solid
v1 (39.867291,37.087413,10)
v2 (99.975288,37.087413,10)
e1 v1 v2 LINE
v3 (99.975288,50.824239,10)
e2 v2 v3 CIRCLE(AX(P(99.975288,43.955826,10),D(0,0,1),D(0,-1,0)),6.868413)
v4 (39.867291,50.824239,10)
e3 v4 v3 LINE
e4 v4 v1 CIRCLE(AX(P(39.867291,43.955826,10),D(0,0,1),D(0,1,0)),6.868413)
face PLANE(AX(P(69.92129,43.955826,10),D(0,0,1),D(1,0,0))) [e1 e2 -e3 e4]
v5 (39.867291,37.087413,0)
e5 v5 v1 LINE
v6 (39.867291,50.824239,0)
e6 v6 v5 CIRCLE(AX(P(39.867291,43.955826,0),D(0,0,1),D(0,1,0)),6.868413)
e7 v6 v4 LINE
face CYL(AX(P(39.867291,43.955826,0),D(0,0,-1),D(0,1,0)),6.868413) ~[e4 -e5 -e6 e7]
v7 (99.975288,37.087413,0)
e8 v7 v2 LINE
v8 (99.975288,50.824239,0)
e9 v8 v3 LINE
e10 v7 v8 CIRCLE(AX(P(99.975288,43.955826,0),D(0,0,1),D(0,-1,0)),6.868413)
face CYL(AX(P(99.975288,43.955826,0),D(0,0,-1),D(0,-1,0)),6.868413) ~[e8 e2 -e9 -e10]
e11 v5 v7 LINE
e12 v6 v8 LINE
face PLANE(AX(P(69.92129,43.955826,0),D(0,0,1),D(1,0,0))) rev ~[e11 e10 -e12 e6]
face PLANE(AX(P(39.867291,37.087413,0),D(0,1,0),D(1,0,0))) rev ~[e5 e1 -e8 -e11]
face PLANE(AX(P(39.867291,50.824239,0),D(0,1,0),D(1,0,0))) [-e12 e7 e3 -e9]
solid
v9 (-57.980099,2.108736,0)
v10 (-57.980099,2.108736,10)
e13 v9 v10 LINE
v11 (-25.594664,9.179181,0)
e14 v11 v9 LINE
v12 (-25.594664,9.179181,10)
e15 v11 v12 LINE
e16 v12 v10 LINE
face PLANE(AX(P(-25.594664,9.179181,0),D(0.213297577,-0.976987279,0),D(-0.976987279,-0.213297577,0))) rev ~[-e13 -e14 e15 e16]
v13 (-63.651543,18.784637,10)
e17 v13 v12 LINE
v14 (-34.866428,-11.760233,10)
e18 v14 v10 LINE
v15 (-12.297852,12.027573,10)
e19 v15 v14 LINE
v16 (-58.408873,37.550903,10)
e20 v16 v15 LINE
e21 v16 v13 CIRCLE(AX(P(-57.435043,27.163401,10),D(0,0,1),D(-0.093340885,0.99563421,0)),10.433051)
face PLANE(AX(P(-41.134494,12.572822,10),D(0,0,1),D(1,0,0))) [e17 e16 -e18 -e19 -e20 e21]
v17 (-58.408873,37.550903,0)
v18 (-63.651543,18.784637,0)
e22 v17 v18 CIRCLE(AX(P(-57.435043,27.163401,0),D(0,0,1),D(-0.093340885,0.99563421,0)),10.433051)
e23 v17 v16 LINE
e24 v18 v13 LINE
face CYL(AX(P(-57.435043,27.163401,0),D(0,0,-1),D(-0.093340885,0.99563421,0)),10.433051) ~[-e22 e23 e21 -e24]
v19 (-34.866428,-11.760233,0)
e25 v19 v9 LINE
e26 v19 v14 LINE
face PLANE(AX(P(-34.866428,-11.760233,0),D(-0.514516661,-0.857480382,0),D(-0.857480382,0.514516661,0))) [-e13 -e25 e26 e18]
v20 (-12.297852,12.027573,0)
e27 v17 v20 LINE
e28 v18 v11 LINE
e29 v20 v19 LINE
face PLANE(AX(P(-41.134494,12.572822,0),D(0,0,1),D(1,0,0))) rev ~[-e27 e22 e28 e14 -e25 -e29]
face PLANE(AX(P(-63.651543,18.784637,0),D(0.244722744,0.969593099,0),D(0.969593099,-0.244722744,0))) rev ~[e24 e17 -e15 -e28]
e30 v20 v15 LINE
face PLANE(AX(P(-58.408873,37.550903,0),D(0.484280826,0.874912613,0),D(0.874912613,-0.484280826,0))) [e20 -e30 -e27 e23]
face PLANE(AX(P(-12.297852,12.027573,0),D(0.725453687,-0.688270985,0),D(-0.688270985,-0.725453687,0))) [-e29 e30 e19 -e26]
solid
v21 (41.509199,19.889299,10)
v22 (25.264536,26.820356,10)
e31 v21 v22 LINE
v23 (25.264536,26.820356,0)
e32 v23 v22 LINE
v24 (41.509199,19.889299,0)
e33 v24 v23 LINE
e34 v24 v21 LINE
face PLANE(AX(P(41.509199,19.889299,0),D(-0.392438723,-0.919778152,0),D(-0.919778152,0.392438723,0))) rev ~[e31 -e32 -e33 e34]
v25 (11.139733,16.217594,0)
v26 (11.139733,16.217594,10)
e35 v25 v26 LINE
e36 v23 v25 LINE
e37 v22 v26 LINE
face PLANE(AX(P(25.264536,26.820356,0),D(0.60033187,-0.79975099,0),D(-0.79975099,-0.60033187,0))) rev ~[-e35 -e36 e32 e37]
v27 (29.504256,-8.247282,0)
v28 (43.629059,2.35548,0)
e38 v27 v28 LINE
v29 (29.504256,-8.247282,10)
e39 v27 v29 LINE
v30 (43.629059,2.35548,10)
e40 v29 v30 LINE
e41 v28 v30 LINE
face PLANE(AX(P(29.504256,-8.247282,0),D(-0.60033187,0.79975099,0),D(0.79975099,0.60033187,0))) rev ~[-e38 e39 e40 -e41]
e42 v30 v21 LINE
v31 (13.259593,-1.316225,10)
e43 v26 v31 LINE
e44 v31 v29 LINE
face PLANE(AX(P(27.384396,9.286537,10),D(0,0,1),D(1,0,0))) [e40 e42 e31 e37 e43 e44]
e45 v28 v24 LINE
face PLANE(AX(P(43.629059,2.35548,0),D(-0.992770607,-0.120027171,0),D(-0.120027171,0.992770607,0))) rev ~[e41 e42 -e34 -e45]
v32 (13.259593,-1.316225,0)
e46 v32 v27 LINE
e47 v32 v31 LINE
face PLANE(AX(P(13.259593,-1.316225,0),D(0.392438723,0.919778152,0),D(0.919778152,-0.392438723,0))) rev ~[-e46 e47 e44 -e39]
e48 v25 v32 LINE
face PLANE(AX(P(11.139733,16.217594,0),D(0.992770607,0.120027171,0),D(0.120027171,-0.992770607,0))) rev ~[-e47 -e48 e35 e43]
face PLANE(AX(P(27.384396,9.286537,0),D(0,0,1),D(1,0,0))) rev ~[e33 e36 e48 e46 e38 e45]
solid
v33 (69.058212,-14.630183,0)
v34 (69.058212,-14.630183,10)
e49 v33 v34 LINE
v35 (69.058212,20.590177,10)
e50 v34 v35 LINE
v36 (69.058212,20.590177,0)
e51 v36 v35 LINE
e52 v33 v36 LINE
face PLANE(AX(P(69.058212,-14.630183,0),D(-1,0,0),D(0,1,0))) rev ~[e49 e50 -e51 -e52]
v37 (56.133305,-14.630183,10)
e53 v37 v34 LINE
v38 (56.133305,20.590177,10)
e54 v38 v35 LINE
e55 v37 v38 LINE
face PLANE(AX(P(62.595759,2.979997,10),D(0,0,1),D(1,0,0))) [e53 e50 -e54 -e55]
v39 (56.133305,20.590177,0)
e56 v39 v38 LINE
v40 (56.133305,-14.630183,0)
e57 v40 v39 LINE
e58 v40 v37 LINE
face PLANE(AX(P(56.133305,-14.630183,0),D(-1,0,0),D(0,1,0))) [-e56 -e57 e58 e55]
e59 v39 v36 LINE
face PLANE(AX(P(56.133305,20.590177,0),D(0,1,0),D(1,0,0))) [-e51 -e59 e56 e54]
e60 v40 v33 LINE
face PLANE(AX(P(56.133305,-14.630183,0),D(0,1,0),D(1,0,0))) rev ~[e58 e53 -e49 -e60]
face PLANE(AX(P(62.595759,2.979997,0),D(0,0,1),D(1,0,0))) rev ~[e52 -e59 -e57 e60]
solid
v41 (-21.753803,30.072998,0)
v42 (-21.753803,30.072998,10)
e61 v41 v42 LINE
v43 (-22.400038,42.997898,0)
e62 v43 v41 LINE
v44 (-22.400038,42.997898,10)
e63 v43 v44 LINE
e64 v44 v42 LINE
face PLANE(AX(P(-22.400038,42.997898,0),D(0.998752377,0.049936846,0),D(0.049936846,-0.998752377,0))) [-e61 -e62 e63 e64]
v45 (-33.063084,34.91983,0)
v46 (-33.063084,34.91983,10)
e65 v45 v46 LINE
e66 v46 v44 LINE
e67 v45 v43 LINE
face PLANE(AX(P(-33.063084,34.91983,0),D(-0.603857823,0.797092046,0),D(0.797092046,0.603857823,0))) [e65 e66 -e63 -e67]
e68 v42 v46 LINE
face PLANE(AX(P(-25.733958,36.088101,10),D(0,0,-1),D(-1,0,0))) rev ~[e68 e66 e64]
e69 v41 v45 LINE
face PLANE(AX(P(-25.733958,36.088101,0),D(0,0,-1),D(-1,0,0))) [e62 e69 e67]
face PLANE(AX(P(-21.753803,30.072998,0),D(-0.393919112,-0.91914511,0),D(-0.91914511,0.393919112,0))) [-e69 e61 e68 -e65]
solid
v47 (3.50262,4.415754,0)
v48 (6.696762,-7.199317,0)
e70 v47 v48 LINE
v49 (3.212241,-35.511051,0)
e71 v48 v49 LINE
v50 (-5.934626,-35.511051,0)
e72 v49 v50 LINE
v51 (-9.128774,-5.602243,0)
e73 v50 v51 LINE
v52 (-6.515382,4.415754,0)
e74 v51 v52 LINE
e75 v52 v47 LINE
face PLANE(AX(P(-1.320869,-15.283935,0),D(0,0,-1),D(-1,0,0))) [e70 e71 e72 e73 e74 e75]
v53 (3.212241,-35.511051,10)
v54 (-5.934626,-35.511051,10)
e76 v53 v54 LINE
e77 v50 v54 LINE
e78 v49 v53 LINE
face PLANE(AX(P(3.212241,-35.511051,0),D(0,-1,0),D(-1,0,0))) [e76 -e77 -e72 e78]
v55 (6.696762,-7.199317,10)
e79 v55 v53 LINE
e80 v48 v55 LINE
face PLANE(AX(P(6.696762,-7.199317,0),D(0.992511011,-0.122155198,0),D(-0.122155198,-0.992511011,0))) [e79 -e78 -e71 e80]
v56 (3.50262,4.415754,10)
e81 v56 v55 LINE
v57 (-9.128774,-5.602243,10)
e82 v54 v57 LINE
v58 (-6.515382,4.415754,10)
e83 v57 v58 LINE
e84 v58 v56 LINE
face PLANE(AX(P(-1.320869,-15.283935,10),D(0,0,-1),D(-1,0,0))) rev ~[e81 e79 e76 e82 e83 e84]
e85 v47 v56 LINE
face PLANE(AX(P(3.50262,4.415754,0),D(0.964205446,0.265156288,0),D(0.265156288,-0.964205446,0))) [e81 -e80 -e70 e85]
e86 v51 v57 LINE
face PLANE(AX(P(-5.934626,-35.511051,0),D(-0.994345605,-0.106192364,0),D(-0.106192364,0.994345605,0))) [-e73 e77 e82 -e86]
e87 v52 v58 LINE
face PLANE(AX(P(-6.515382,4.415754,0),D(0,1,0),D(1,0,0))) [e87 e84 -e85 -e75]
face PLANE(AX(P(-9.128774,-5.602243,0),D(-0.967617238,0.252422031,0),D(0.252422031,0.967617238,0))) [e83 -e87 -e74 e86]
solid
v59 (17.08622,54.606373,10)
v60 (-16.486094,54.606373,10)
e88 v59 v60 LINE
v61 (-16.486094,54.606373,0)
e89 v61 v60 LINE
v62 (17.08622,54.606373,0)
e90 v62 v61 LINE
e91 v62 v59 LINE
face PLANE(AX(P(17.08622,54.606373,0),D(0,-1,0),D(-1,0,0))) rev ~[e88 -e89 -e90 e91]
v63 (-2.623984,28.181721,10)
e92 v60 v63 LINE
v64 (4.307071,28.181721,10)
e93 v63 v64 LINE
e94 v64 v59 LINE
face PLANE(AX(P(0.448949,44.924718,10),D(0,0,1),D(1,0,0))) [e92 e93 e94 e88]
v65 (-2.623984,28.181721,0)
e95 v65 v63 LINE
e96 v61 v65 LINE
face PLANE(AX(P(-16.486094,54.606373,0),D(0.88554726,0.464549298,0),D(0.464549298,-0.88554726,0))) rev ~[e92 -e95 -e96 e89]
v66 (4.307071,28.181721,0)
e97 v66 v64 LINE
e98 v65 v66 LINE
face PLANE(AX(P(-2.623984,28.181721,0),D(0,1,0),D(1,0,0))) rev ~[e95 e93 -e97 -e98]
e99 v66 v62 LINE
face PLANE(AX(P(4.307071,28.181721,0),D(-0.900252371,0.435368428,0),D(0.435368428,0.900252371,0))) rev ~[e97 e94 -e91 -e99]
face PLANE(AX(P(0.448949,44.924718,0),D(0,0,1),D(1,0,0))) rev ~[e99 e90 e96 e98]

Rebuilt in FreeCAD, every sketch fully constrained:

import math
import FreeCAD as App
import Part
import Sketcher


def add_polygon(sketch, points):
    """Adds a closed chain of lines whose ends are joined by coincident constraints."""
    first, n = sketch.GeometryCount, len(points)
    for a, b in zip(points, points[1:] + points[:1]):
        sketch.addGeometry(Part.LineSegment(App.Vector(*a, 0), App.Vector(*b, 0)), False)
    for i in range(n):
        sketch.addConstraint(Sketcher.Constraint("Coincident", first + i, 2, first + (i + 1) % n, 1))

doc = App.newDocument("Part")
body = doc.addObject("PartDesign::Body", "Body")

# Sketch on XY plane
sketch1 = body.newObject("Sketcher::SketchObject", "Sketch")
sketch1.AttachmentSupport = (doc.getObject("XY_Plane"), [""])
sketch1.MapMode = "FlatFace"
sketch1.addGeometry(Part.ArcOfCircle(Part.Circle(App.Vector(-57, 27, 0), App.Vector(0, 0, 1), 10), math.radians(95), math.radians(233)), False)
sketch1.addGeometry(Part.LineSegment(App.Vector(-64, 19, 0), App.Vector(-26, 9, 0)), False)
sketch1.addGeometry(Part.LineSegment(App.Vector(-26, 9, 0), App.Vector(-58, 2, 0)), False)
sketch1.addGeometry(Part.LineSegment(App.Vector(-58, 2, 0), App.Vector(-35, -12, 0)), False)
sketch1.addGeometry(Part.LineSegment(App.Vector(-35, -12, 0), App.Vector(-12, 12, 0)), False)
sketch1.addGeometry(Part.LineSegment(App.Vector(-12, 12, 0), App.Vector(-58, 38, 0)), False)
sketch1.addConstraint(Sketcher.Constraint("Coincident", 0, 2, 1, 1))
sketch1.addConstraint(Sketcher.Constraint("Coincident", 1, 2, 2, 1))
sketch1.addConstraint(Sketcher.Constraint("Coincident", 2, 2, 3, 1))
sketch1.addConstraint(Sketcher.Constraint("Coincident", 3, 2, 4, 1))
sketch1.addConstraint(Sketcher.Constraint("Coincident", 4, 2, 5, 1))
sketch1.addConstraint(Sketcher.Constraint("Coincident", 5, 2, 0, 1))
sketch1.addConstraint(Sketcher.Constraint("Radius", 0, 10.433051))
sketch1.addConstraint(Sketcher.Constraint("DistanceY", -1, 1, 0, 3, 27.163401))
sketch1.addConstraint(Sketcher.Constraint("DistanceX", 2, 2, -1, 1, 57.980099))
sketch1.addConstraint(Sketcher.Constraint("DistanceX", 0, 2, 0, 3, 6.2165))
sketch1.addConstraint(Sketcher.Constraint("DistanceY", 2, 2, 0, 2, 16.675901))
sketch1.addConstraint(Sketcher.Constraint("Distance", 1, 39.250361))
sketch1.addConstraint(Sketcher.Constraint("DistanceY", -1, 1, 1, 2, 9.179181))
sketch1.addConstraint(Sketcher.Constraint("DistanceX", 2, 2, 3, 2, 23.113671))
sketch1.addConstraint(Sketcher.Constraint("DistanceY", 3, 2, 2, 2, 13.868969))
sketch1.addConstraint(Sketcher.Constraint("DistanceX", 0, 3, 4, 2, 45.137191))
sketch1.addConstraint(Sketcher.Constraint("DistanceX", 5, 2, 0, 3, 0.97383))
sketch1.addConstraint(Sketcher.Constraint("DistanceY", 4, 2, 5, 2, 25.52333))
sketch1.addConstraint(Sketcher.Constraint("Distance", 2, 33.148267))
pad1 = body.newObject("PartDesign::Pad", "Pad")
pad1.Profile = sketch1
pad1.Length = 10
body2 = doc.addObject("PartDesign::Body", "Body001")

# Sketch on XY plane
sketch2 = body2.newObject("Sketcher::SketchObject", "Sketch001")
sketch2.AttachmentSupport = (doc.getObject("XY_Plane001"), [""])
sketch2.MapMode = "FlatFace"
add_polygon(sketch2, [(44, 2), (42, 20), (25, 27), (11, 16), (13, -1), (30, -8)])  # lines 0-5
sketch2.addConstraint(Sketcher.Constraint("Parallel", 0, 3))
sketch2.addConstraint(Sketcher.Constraint("Parallel", 1, 4))
sketch2.addConstraint(Sketcher.Constraint("Parallel", 2, 5))
sketch2.addConstraint(Sketcher.Constraint("Equal", 0, 1))
sketch2.addConstraint(Sketcher.Constraint("Equal", 1, 2))
sketch2.addConstraint(Sketcher.Constraint("Equal", 2, 3))
sketch2.addConstraint(Sketcher.Constraint("Distance", 0, 17.661501))
sketch2.addConstraint(Sketcher.Constraint("DistanceX", -1, 1, 0, 2, 41.509199))
sketch2.addConstraint(Sketcher.Constraint("DistanceY", -1, 1, 0, 2, 19.889299))
sketch2.addConstraint(Sketcher.Constraint("DistanceX", -1, 1, 5, 2, 43.629059))
sketch2.addConstraint(Sketcher.Constraint("DistanceY", 3, 2, 1, 2, 28.136581))
sketch2.addConstraint(Sketcher.Constraint("DistanceX", 1, 2, 4, 2, 4.23972))
pad2 = body2.newObject("PartDesign::Pad", "Pad001")
pad2.Profile = sketch2
pad2.Length = 10
body3 = doc.addObject("PartDesign::Body", "Body002")

# Sketch on XY plane
sketch3 = body3.newObject("Sketcher::SketchObject", "Sketch002")
sketch3.AttachmentSupport = (doc.getObject("XY_Plane002"), [""])
sketch3.MapMode = "FlatFace"
add_polygon(sketch3, [(-16, 55), (-3, 28), (4, 28), (17, 55)])  # lines 0-3
sketch3.addConstraint(Sketcher.Constraint("Horizontal", 1))
sketch3.addConstraint(Sketcher.Constraint("Horizontal", 3))
sketch3.addConstraint(Sketcher.Constraint("Distance", 0, 29.839912))
sketch3.addConstraint(Sketcher.Constraint("DistanceX", 1, 1, 1, 2, 6.931055))
sketch3.addConstraint(Sketcher.Constraint("DistanceX", 3, 2, 3, 1, 33.572314))
sketch3.addConstraint(Sketcher.Constraint("DistanceY", -1, 1, 0, 2, 28.181721))
sketch3.addConstraint(Sketcher.Constraint("DistanceX", -1, 1, 1, 2, 4.307071))
sketch3.addConstraint(Sketcher.Constraint("DistanceX", -1, 1, 2, 2, 17.08622))
pad3 = body3.newObject("PartDesign::Pad", "Pad002")
pad3.Profile = sketch3
pad3.Length = 10
body4 = doc.addObject("PartDesign::Body", "Body003")

# Sketch on XY plane
sketch4 = body4.newObject("Sketcher::SketchObject", "Sketch003")
sketch4.AttachmentSupport = (doc.getObject("XY_Plane003"), [""])
sketch4.MapMode = "FlatFace"
add_polygon(sketch4, [(4, 4), (-7, 4), (-9, -6), (-6, -36), (3, -36), (7, -7)])  # lines 0-5
sketch4.addConstraint(Sketcher.Constraint("Horizontal", 0))
sketch4.addConstraint(Sketcher.Constraint("Horizontal", 3))
sketch4.addConstraint(Sketcher.Constraint("DistanceX", 0, 2, 0, 1, 10.018002))
sketch4.addConstraint(Sketcher.Constraint("Distance", 4, 28.52536))
sketch4.addConstraint(Sketcher.Constraint("Distance", 5, 12.046262))
sketch4.addConstraint(Sketcher.Constraint("DistanceX", 3, 1, 3, 2, 9.146867))
sketch4.addConstraint(Sketcher.Constraint("DistanceX", 0, 2, -1, 1, 6.515382))
sketch4.addConstraint(Sketcher.Constraint("DistanceY", 2, 2, -1, 1, 35.511051))
sketch4.addConstraint(Sketcher.Constraint("DistanceX", -1, 1, 3, 2, 3.212241))
sketch4.addConstraint(Sketcher.Constraint("DistanceX", -1, 1, 4, 2, 6.696762))
sketch4.addConstraint(Sketcher.Constraint("DistanceX", 1, 2, 2, 2, 3.194148))
sketch4.addConstraint(Sketcher.Constraint("DistanceY", 2, 2, 1, 2, 29.908808))
pad4 = body4.newObject("PartDesign::Pad", "Pad003")
pad4.Profile = sketch4
pad4.Length = 10
body5 = doc.addObject("PartDesign::Body", "Body004")

# Sketch on XY plane
sketch5 = body5.newObject("Sketcher::SketchObject", "Sketch004")
sketch5.AttachmentSupport = (doc.getObject("XY_Plane004"), [""])
sketch5.MapMode = "FlatFace"
sketch5.addGeometry(Part.ArcOfCircle(Part.Circle(App.Vector(40, 44, 0), App.Vector(0, 0, 1), 7), math.radians(90), math.radians(270)), False)
sketch5.addGeometry(Part.LineSegment(App.Vector(40, 37, 0), App.Vector(100, 37, 0)), False)
sketch5.addGeometry(Part.ArcOfCircle(Part.Circle(App.Vector(100, 44, 0), App.Vector(0, 0, 1), 7), math.radians(-90), math.radians(90)), False)
sketch5.addGeometry(Part.LineSegment(App.Vector(100, 51, 0), App.Vector(40, 51, 0)), False)
sketch5.addConstraint(Sketcher.Constraint("Tangent", 0, 2, 1, 1))
sketch5.addConstraint(Sketcher.Constraint("Tangent", 1, 2, 2, 1))
sketch5.addConstraint(Sketcher.Constraint("Tangent", 2, 2, 3, 1))
sketch5.addConstraint(Sketcher.Constraint("Tangent", 3, 2, 0, 1))
sketch5.addConstraint(Sketcher.Constraint("Horizontal", 1))
sketch5.addConstraint(Sketcher.Constraint("Horizontal", 3))
sketch5.addConstraint(Sketcher.Constraint("Radius", 0, 6.868413))
sketch5.addConstraint(Sketcher.Constraint("DistanceX", 1, 1, 1, 2, 60.107997))
sketch5.addConstraint(Sketcher.Constraint("DistanceX", -1, 1, 0, 3, 39.867291))
sketch5.addConstraint(Sketcher.Constraint("DistanceY", -1, 1, 2, 2, 50.824239))
pad5 = body5.newObject("PartDesign::Pad", "Pad004")
pad5.Profile = sketch5
pad5.Length = 10
body6 = doc.addObject("PartDesign::Body", "Body005")

# Sketch on XY plane
sketch6 = body6.newObject("Sketcher::SketchObject", "Sketch005")
sketch6.AttachmentSupport = (doc.getObject("XY_Plane005"), [""])
sketch6.MapMode = "FlatFace"
add_polygon(sketch6, [(56, 21), (56, -15), (69, -15), (69, 21)])  # lines 0-3
sketch6.addConstraint(Sketcher.Constraint("Vertical", 0))
sketch6.addConstraint(Sketcher.Constraint("Horizontal", 1))
sketch6.addConstraint(Sketcher.Constraint("Vertical", 2))
sketch6.addConstraint(Sketcher.Constraint("Horizontal", 3))
sketch6.addConstraint(Sketcher.Constraint("DistanceY", 0, 2, 0, 1, 35.220361))
sketch6.addConstraint(Sketcher.Constraint("DistanceX", 1, 1, 1, 2, 12.924907))
sketch6.addConstraint(Sketcher.Constraint("DistanceX", -1, 1, 0, 2, 56.133305))
sketch6.addConstraint(Sketcher.Constraint("DistanceY", 0, 2, -1, 1, 14.630183))
pad6 = body6.newObject("PartDesign::Pad", "Pad005")
pad6.Profile = sketch6
pad6.Length = 10
body7 = doc.addObject("PartDesign::Body", "Body006")

# Sketch on XY plane
sketch7 = body7.newObject("Sketcher::SketchObject", "Sketch006")
sketch7.AttachmentSupport = (doc.getObject("XY_Plane006"), [""])
sketch7.MapMode = "FlatFace"
add_polygon(sketch7, [(-22, 43), (-33, 35), (-22, 30)])  # lines 0-2
sketch7.addConstraint(Sketcher.Constraint("DistanceY", 1, 2, 2, 2, 12.9249))
sketch7.addConstraint(Sketcher.Constraint("Distance", 1, 12.30413))
sketch7.addConstraint(Sketcher.Constraint("DistanceY", -1, 1, 0, 2, 34.91983))
sketch7.addConstraint(Sketcher.Constraint("DistanceX", 0, 2, 1, 2, 11.309281))
sketch7.addConstraint(Sketcher.Constraint("Distance", 0, 13.377434))
sketch7.addConstraint(Sketcher.Constraint("DistanceX", 0, 2, -1, 1, 33.063084))
pad7 = body7.newObject("PartDesign::Pad", "Pad006")
pad7.Profile = sketch7
pad7.Length = 10

doc.recompute()
